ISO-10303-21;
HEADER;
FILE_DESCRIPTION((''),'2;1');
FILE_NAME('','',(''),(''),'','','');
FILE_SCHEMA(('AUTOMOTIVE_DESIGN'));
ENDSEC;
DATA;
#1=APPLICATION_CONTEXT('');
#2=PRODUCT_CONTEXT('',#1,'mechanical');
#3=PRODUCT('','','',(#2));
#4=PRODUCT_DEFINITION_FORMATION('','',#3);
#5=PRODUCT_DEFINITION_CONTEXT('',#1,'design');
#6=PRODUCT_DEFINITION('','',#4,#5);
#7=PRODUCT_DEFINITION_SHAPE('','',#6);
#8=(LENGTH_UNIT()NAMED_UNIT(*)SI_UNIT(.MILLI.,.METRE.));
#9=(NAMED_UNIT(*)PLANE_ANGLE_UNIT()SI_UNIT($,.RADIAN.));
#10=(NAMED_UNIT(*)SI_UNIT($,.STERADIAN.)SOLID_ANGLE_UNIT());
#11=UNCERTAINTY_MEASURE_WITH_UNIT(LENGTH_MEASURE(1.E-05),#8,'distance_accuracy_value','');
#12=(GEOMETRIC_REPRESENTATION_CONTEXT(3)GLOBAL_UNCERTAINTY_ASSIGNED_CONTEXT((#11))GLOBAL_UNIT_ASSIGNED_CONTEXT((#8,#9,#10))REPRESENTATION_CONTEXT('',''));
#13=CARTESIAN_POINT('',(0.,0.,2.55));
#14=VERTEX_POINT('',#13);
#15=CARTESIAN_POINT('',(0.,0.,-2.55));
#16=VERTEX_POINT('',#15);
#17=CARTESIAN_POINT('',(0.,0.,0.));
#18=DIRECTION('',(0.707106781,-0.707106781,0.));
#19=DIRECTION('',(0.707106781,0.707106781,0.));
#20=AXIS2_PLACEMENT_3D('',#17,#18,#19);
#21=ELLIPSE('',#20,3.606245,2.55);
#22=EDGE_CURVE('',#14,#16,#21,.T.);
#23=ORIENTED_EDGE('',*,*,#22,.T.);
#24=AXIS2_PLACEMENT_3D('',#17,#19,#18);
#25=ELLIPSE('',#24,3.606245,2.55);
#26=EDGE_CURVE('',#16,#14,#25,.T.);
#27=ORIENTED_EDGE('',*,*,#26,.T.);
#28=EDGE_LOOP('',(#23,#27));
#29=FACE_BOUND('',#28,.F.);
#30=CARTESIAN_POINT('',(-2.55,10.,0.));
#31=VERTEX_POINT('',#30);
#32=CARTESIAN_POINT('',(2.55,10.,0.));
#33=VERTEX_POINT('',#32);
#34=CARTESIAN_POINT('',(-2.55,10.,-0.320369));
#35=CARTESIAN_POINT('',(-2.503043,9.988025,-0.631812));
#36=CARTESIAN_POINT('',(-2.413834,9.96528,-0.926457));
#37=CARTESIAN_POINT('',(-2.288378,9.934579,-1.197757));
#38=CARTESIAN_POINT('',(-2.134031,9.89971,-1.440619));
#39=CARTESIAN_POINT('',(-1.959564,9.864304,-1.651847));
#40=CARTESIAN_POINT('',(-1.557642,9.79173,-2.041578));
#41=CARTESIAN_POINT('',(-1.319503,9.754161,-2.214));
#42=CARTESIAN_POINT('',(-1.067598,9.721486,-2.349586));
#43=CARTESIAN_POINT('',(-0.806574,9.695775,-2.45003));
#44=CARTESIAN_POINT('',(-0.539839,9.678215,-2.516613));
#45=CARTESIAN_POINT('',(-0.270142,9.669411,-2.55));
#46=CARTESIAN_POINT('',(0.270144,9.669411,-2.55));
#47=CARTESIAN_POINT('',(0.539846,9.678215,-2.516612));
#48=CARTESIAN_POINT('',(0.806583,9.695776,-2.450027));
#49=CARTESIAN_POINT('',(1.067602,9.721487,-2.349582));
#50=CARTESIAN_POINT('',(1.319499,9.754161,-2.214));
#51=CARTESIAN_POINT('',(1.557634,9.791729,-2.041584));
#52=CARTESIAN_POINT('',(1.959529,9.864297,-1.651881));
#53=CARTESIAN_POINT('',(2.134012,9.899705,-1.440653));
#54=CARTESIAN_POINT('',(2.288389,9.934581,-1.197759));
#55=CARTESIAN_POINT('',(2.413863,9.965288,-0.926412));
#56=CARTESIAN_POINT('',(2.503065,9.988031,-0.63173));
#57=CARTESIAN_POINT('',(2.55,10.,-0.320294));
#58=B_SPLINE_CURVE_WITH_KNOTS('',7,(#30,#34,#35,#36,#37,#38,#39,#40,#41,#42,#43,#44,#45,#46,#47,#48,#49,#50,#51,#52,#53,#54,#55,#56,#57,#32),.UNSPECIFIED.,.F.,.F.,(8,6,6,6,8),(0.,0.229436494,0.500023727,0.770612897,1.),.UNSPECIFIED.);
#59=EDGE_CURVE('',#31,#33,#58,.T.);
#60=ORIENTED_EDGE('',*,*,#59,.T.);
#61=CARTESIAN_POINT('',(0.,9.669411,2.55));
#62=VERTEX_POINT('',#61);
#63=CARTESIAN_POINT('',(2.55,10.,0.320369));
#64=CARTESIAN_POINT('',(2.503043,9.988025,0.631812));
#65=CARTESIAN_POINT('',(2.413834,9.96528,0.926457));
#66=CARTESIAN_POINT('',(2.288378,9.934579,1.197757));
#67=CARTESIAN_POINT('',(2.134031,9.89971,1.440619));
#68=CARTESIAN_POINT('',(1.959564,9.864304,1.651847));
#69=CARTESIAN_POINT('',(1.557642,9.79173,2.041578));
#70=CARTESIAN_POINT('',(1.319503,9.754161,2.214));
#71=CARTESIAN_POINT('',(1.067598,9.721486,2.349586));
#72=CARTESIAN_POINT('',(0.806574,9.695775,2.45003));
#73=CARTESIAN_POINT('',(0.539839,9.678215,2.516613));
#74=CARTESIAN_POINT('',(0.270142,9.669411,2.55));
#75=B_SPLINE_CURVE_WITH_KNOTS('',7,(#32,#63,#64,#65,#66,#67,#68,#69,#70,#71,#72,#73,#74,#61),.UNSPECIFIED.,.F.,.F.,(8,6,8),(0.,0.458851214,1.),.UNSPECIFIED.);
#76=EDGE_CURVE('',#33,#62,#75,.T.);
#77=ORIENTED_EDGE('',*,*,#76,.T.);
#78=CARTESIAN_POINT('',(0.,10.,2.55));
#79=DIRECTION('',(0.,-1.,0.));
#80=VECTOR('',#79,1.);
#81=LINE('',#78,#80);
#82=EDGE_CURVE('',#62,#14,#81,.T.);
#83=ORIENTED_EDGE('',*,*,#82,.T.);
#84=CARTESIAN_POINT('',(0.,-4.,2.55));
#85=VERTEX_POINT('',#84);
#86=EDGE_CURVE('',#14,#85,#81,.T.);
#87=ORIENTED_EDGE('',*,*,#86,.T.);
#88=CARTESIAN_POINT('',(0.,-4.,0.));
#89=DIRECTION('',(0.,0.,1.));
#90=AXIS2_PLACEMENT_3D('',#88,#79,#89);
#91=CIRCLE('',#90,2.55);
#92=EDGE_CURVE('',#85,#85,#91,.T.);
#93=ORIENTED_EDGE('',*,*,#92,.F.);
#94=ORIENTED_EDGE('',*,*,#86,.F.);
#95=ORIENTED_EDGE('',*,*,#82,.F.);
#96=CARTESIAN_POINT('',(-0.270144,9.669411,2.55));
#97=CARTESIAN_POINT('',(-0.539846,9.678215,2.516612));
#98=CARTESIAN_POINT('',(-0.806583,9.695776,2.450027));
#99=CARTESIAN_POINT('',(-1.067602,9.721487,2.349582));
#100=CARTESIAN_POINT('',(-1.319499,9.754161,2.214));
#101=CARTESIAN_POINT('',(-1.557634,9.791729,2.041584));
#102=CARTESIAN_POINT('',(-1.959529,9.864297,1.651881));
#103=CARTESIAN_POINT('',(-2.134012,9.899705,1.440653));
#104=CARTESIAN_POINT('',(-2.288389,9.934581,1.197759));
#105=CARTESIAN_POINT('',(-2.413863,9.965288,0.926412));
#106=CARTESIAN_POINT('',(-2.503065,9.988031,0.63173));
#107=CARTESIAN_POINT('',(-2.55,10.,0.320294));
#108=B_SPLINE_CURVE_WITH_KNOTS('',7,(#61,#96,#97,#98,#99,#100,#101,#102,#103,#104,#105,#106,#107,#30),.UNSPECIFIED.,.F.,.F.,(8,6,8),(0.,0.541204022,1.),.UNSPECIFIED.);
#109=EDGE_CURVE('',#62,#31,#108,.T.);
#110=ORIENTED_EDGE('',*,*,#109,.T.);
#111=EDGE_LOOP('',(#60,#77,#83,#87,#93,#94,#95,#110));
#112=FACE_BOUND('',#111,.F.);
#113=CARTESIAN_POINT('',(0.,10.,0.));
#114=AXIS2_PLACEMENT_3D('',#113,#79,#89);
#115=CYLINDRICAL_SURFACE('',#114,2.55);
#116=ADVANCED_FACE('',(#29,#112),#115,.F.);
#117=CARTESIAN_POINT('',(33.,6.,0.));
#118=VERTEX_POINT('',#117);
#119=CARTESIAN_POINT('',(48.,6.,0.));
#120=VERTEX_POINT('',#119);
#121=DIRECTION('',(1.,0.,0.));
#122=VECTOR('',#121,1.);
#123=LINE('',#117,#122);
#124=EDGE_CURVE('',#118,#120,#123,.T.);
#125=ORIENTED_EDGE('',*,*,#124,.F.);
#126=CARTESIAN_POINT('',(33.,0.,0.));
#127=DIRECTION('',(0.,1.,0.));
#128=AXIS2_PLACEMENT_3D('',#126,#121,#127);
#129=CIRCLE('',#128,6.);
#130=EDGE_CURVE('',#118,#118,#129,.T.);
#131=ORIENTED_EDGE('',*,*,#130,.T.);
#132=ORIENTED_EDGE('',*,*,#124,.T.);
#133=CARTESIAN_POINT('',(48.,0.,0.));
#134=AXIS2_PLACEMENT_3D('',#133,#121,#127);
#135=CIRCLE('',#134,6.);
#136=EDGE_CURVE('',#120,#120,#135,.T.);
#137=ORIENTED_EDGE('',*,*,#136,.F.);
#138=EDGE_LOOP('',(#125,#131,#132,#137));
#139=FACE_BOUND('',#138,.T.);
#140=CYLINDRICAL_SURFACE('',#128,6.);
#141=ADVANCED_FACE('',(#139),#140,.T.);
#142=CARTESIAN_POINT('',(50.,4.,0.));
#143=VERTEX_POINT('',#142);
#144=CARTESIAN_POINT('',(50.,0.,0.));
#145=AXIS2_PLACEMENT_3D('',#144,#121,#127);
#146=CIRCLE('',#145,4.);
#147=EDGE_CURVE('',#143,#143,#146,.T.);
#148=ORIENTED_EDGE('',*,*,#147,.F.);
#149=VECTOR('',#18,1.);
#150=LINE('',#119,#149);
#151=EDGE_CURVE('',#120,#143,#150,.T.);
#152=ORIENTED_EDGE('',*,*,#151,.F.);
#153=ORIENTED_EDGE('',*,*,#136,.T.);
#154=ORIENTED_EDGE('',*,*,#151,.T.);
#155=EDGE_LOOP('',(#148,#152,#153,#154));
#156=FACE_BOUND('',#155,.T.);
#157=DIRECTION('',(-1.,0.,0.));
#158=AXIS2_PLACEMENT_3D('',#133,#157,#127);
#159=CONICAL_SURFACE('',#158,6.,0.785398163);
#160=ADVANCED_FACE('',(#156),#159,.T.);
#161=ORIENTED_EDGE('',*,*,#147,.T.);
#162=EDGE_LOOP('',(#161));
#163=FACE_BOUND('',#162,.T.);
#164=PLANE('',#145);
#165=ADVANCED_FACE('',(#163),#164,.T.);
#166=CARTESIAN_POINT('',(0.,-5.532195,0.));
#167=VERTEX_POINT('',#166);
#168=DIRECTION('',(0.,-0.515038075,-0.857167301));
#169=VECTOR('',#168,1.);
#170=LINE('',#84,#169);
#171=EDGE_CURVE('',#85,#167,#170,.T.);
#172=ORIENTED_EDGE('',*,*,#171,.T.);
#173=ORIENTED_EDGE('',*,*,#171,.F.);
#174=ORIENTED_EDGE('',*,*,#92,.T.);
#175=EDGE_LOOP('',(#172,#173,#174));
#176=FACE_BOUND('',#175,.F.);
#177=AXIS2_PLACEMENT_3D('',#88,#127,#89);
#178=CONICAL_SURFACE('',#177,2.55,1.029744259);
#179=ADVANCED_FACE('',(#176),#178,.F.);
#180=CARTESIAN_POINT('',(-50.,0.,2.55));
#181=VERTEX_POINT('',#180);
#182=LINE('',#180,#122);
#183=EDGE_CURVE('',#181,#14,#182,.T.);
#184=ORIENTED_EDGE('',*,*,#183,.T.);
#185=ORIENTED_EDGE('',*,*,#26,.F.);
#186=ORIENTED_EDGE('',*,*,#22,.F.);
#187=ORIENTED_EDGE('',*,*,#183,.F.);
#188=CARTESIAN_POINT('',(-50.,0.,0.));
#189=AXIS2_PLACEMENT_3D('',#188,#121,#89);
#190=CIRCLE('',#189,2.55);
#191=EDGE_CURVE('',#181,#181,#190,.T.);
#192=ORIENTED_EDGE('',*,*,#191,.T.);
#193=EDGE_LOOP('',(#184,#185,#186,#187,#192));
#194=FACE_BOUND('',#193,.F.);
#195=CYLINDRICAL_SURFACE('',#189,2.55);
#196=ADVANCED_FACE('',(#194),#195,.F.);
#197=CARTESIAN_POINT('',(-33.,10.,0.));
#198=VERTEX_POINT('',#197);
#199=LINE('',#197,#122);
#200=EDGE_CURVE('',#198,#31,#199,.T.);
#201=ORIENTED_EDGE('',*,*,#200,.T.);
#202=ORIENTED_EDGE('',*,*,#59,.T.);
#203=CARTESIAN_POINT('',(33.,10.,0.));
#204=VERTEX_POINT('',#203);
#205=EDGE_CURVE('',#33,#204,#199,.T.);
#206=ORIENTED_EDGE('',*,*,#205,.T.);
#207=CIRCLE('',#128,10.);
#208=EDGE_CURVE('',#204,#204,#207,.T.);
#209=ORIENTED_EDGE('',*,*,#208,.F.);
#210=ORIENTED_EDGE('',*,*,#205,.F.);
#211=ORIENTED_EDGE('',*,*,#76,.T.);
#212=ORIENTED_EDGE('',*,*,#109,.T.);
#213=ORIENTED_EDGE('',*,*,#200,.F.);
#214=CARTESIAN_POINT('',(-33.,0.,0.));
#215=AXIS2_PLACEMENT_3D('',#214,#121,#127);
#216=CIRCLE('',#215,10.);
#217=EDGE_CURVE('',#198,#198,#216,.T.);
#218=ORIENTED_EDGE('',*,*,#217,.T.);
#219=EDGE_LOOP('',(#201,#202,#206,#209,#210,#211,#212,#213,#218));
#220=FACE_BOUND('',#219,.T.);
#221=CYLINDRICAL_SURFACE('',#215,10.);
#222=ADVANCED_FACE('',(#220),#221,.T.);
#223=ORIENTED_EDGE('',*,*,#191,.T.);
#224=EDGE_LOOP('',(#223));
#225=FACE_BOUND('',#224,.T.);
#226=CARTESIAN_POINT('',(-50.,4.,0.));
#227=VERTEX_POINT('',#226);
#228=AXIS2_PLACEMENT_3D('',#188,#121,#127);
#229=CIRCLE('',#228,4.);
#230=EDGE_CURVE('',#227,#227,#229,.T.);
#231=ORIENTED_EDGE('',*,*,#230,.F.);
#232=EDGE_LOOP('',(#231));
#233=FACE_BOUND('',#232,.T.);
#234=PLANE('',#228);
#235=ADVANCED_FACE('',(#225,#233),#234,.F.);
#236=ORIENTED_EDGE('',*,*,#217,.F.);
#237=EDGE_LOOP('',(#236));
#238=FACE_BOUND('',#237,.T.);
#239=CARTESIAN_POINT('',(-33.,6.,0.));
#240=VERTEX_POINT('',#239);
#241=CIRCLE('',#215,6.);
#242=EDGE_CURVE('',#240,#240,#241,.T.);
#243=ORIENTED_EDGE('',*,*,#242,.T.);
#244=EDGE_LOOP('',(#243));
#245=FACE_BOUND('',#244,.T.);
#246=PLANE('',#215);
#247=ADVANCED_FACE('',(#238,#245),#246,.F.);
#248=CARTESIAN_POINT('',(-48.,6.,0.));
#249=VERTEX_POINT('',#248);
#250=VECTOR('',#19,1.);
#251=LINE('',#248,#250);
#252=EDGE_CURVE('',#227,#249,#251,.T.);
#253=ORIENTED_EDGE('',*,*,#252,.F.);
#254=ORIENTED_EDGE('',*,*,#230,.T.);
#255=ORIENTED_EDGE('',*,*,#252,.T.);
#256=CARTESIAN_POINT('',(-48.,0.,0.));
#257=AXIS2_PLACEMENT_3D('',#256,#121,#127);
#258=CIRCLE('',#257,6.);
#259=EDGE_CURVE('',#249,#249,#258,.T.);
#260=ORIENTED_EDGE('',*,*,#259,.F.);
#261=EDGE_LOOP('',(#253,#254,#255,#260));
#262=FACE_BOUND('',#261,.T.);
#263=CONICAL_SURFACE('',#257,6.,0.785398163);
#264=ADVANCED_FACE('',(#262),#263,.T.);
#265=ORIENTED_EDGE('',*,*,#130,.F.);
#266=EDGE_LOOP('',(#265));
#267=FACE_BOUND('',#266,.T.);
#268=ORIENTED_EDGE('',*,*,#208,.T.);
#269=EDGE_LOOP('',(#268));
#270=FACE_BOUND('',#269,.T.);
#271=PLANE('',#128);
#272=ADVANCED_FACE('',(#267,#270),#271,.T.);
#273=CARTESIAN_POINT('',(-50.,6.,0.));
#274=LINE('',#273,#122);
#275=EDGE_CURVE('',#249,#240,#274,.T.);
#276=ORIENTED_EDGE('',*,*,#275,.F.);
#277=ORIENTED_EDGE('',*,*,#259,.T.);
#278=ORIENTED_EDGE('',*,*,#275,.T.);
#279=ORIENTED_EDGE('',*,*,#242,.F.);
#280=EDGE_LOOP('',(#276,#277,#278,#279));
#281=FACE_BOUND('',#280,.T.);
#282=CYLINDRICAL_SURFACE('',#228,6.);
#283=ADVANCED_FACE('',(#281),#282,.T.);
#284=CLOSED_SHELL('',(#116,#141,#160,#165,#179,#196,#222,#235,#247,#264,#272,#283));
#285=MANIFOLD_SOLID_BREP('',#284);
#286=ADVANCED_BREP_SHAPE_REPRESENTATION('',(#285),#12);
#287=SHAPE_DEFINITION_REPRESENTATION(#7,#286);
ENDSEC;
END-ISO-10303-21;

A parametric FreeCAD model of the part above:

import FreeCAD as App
import Part
import Sketcher


def edges_at(feature, points):
    """Names of the edges that pass closest to the given points."""
    edges = feature.Shape.Edges
    near = lambda p: min(range(len(edges)), key=lambda i: edges[i].distToShape(Part.Vertex(*p))[0])
    return sorted({f"Edge{near(p) + 1}" for p in points})


def add_polygon(sketch, points):
    """Adds a closed chain of lines whose ends are joined by coincident constraints."""
    first, n = sketch.GeometryCount, len(points)
    for a, b in zip(points, points[1:] + points[:1]):
        sketch.addGeometry(Part.LineSegment(App.Vector(*a, 0), App.Vector(*b, 0)), False)
    for i in range(n):
        sketch.addConstraint(Sketcher.Constraint("Coincident", first + i, 2, first + (i + 1) % n, 1))

doc = App.newDocument("Part")
body = doc.addObject("PartDesign::Body", "Body")

sketch1 = doc.addObject("Sketcher::SketchObject", "Sketch")
body.addObject(sketch1)
sketch1.AttachmentSupport = (doc.XY_Plane, [""])
sketch1.MapMode = "FlatFace"
add_polygon(sketch1, [(-50, 6), (-50, 0), (50, 0), (50, 6), (33, 6), (33, 10), (-33, 10), (-33, 6)])
sketch1.addConstraint([
    Sketcher.Constraint("Vertical", 0),
    Sketcher.Constraint("Horizontal", 1),
    Sketcher.Constraint("Vertical", 2),
    Sketcher.Constraint("Horizontal", 3),
    Sketcher.Constraint("Vertical", 4),
    Sketcher.Constraint("Horizontal", 5),
    Sketcher.Constraint("Vertical", 6),
    Sketcher.Constraint("Horizontal", 7),
    Sketcher.Constraint("Symmetric", 0, 2, 1, 2, -1, 1),
    Sketcher.Constraint("Symmetric", 3, 2, 6, 2, -2),
    Sketcher.Constraint("DistanceX", 1, 1, 1, 2, 100.0),
    Sketcher.Constraint("DistanceX", 3, 2, 3, 1, 17.0),
    Sketcher.Constraint("DistanceY", 0, 2, 0, 1, 6.0),
    Sketcher.Constraint("DistanceY", 4, 1, 4, 2, 4.0),
])
revolution = doc.addObject("PartDesign::Revolution", "Revolution")
body.addObject(revolution)
revolution.Profile = sketch1
revolution.ReferenceAxis = (sketch1, ["H_Axis"])
revolution.Angle = 360

sketch2 = doc.addObject("Sketcher::SketchObject", "Sketch001")
body.addObject(sketch2)
sketch2.AttachmentSupport = (doc.YZ_Plane, [""])
sketch2.MapMode = "FlatFace"
sketch2.AttachmentOffset = App.Placement(App.Vector(0, 0, -50), App.Rotation())
sketch2.addGeometry(Part.Circle(App.Vector(0, 0, 0), App.Vector(0, 0, 1), 2.55), False)
sketch2.addConstraint([
    Sketcher.Constraint("Coincident", 0, 3, -1, 1),
    Sketcher.Constraint("Diameter", 0, 5.1),
])
doc.recompute()
hole = doc.addObject("PartDesign::Hole", "Hole")
body.addObject(hole)
hole.Profile = sketch2
hole.ThreadType = "None"
hole.Diameter = 5.1
hole.DepthType = "Dimension"
hole.Depth = 50
hole.DrillPoint = "Angled"
hole.DrillPointAngle = 118
hole.Reversed = True

sketch3 = doc.addObject("Sketcher::SketchObject", "Sketch002")
body.addObject(sketch3)
sketch3.AttachmentSupport = (doc.XZ_Plane, [""])
sketch3.MapMode = "FlatFace"
sketch3.AttachmentOffset = App.Placement(App.Vector(0, 0, -10), App.Rotation())
sketch3.addGeometry(Part.Circle(App.Vector(0, 0, 0), App.Vector(0, 0, 1), 2.55), False)
sketch3.addConstraint([
    Sketcher.Constraint("Coincident", 0, 3, -1, 1),
    Sketcher.Constraint("Diameter", 0, 5.1),
])
doc.recompute()
hole2 = doc.addObject("PartDesign::Hole", "Hole001")
body.addObject(hole2)
hole2.Profile = sketch3
hole2.ThreadType = "None"
hole2.Diameter = 5.1
hole2.DepthType = "Dimension"
hole2.Depth = 14
hole2.DrillPoint = "Angled"
hole2.DrillPointAngle = 118
hole2.Reversed = True
doc.recompute()

chamfer = doc.addObject("PartDesign::Chamfer", "Chamfer")
body.addObject(chamfer)
chamfer.Base = (hole2, edges_at(hole2, [(-50, -6, 0), (50, -6, 0)]))
chamfer.Size = 2

doc.recompute()
